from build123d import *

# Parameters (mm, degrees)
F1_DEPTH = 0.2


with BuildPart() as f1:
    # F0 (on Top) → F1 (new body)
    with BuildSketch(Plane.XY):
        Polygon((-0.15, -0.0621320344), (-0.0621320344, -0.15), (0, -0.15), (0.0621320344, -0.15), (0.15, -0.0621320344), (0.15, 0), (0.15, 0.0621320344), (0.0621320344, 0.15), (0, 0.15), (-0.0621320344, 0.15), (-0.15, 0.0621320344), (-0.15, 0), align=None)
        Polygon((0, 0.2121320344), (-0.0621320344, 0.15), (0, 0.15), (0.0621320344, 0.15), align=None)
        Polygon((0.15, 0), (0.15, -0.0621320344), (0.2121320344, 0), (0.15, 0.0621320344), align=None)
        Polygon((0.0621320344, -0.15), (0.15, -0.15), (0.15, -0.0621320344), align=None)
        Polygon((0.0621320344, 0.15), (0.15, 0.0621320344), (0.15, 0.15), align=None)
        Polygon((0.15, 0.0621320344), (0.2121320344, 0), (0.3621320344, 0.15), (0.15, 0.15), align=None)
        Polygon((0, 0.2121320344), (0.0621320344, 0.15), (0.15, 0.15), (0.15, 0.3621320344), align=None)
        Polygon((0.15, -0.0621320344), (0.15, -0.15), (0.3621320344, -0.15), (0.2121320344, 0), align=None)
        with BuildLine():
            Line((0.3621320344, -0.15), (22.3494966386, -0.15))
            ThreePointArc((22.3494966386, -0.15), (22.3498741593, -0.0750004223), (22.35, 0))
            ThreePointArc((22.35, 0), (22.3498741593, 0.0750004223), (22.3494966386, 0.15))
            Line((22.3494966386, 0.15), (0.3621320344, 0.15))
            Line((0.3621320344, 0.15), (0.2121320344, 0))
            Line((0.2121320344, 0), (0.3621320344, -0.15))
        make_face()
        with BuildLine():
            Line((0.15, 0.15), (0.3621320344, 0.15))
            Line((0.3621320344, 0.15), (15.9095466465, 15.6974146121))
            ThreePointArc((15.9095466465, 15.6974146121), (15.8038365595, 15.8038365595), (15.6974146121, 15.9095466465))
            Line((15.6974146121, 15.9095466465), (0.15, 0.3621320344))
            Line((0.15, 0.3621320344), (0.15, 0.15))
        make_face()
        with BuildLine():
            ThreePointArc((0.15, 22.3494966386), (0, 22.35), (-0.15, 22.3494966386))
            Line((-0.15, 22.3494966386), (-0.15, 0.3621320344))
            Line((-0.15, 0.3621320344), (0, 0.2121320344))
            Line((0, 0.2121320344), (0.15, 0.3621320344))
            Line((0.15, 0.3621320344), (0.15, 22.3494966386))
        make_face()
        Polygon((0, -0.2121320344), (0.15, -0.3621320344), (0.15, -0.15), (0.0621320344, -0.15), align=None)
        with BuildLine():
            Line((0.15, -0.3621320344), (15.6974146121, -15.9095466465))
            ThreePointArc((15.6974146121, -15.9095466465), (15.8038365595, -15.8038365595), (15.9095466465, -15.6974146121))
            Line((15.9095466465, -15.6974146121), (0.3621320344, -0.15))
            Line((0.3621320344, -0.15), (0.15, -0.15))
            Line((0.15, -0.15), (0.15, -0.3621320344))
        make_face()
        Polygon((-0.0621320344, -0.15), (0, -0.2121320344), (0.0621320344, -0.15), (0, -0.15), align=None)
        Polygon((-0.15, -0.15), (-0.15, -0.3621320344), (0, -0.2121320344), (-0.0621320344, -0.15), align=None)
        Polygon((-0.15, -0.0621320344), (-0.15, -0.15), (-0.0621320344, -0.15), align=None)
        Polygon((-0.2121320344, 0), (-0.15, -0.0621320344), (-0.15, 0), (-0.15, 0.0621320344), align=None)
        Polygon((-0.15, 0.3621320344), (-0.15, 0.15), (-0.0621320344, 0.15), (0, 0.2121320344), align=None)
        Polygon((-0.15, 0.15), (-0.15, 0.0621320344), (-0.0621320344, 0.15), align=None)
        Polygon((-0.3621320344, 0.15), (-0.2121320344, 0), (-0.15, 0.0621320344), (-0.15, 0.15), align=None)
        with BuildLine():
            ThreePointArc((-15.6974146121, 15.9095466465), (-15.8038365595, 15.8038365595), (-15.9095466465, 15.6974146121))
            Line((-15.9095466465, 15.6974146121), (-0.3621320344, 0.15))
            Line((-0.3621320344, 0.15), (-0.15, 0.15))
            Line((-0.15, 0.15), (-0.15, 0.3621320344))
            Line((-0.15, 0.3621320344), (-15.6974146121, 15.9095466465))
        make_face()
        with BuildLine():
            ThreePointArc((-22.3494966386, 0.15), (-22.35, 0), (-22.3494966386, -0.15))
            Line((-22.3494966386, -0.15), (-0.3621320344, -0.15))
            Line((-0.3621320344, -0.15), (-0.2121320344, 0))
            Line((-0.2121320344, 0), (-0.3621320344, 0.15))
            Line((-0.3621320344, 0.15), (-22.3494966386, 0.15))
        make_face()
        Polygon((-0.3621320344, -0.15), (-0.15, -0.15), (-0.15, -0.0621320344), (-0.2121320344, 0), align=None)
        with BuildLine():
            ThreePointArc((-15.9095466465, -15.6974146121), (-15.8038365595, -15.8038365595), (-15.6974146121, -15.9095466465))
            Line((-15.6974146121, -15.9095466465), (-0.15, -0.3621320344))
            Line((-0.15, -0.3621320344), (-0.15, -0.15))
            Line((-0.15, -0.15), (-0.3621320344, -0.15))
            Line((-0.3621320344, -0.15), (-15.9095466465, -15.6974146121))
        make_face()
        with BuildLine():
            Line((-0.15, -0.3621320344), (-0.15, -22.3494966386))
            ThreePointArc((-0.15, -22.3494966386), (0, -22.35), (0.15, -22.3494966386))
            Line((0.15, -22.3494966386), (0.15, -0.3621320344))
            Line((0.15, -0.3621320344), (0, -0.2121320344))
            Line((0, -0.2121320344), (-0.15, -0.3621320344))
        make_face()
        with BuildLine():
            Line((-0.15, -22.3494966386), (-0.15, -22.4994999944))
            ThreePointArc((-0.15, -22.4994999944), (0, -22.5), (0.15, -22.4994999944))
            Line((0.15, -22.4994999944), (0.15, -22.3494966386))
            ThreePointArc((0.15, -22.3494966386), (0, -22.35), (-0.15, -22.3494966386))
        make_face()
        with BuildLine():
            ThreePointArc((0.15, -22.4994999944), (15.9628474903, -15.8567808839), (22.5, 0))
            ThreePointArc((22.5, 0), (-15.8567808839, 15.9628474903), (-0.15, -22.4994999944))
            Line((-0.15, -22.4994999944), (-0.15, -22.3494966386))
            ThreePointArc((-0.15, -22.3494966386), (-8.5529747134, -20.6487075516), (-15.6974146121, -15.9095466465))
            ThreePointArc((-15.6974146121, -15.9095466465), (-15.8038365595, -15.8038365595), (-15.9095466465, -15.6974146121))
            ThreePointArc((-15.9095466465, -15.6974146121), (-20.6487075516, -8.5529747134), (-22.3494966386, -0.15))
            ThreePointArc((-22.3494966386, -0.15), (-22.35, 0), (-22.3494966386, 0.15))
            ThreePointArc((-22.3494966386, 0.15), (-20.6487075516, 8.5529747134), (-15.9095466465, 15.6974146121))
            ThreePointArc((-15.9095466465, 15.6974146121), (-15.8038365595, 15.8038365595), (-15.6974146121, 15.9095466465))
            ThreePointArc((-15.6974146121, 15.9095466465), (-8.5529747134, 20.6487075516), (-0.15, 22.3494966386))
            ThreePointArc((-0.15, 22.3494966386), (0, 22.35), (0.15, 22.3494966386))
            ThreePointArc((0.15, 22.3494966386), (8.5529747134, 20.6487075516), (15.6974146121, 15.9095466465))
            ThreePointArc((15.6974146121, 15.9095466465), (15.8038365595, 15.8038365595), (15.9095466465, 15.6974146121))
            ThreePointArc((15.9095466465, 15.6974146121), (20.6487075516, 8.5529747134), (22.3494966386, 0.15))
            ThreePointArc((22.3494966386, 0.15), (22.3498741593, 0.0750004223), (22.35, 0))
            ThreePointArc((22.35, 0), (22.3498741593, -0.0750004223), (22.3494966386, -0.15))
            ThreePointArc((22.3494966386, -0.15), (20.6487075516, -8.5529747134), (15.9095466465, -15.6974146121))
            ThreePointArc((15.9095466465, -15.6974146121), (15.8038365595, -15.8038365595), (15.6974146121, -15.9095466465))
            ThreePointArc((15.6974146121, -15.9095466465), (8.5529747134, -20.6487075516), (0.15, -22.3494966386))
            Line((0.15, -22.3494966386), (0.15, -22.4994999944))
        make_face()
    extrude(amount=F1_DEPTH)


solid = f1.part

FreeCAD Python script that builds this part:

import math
import FreeCAD as App
import Part
import Sketcher
Q = App.Units.Quantity

doc = App.newDocument("Part")
body = doc.addObject("PartDesign::Body", "Body")

sketch1 = body.newObject("Sketcher::SketchObject", "Sketch")
sketch1.AttachmentSupport = (doc.getObject("XY_Plane"), [""])
sketch1.MapMode = "FlatFace"
sketch1.addGeometry([
    Part.ArcOfCircle(Part.Circle(App.Vector(0, 0, 0), App.Vector(0, 0, 1), 22.5), math.radians(-90.38), math.radians(-89.62)),
    Part.ArcOfCircle(Part.Circle(App.Vector(0, 0, 0), App.Vector(0, 0, 1), 22.5), math.radians(-90), math.radians(0)),
    Part.ArcOfCircle(Part.Circle(App.Vector(0, 0, 0), App.Vector(0, 0, 1), 22.5), math.radians(0), math.radians(270)),
    Part.LineSegment(App.Vector(0.15, -0.36, 0), App.Vector(15.7, -15.91, 0)),
    Part.ArcOfCircle(Part.Circle(App.Vector(0, 0, 0), App.Vector(0, 0, 1), 22.35), math.radians(-90), math.radians(-45)),
    Part.LineSegment(App.Vector(0.15, -22.35, 0), App.Vector(0.15, -0.36, 0)),
    Part.LineSegment(App.Vector(15.91, -15.7, 0), App.Vector(0.36, -0.15, 0)),
    Part.LineSegment(App.Vector(0.36, -0.15, 0), App.Vector(22.35, -0.15, 0)),
    Part.ArcOfCircle(Part.Circle(App.Vector(0, 0, 0), App.Vector(0, 0, 1), 22.35), math.radians(-45), math.radians(0)),
    Part.LineSegment(App.Vector(22.35, 0.15, 0), App.Vector(0.36, 0.15, 0)),
    Part.LineSegment(App.Vector(0.36, 0.15, 0), App.Vector(15.91, 15.7, 0)),
    Part.ArcOfCircle(Part.Circle(App.Vector(0, 0, 0), App.Vector(0, 0, 1), 22.35), math.radians(0), math.radians(45)),
    Part.LineSegment(App.Vector(15.7, 15.91, 0), App.Vector(0.15, 0.36, 0)),
    Part.LineSegment(App.Vector(0.15, 0.36, 0), App.Vector(0.15, 22.35, 0)),
    Part.ArcOfCircle(Part.Circle(App.Vector(0, 0, 0), App.Vector(0, 0, 1), 22.35), math.radians(45), math.radians(90)),
    Part.LineSegment(App.Vector(-0.15, 22.35, 0), App.Vector(-0.15, 0.36, 0)),
    Part.LineSegment(App.Vector(-0.15, 0.36, 0), App.Vector(-15.7, 15.91, 0)),
    Part.ArcOfCircle(Part.Circle(App.Vector(0, 0, 0), App.Vector(0, 0, 1), 22.35), math.radians(90), math.radians(135)),
    Part.LineSegment(App.Vector(-15.91, 15.7, 0), App.Vector(-0.36, 0.15, 0)),
    Part.LineSegment(App.Vector(-0.36, 0.15, 0), App.Vector(-22.35, 0.15, 0)),
    Part.ArcOfCircle(Part.Circle(App.Vector(0, 0, 0), App.Vector(0, 0, 1), 22.35), math.radians(135), math.radians(180)),
    Part.LineSegment(App.Vector(-22.35, -0.15, 0), App.Vector(-0.36, -0.15, 0)),
    Part.LineSegment(App.Vector(-0.36, -0.15, 0), App.Vector(-15.91, -15.7, 0)),
    Part.ArcOfCircle(Part.Circle(App.Vector(0, 0, 0), App.Vector(0, 0, 1), 22.35), math.radians(-180), math.radians(-135)),
    Part.LineSegment(App.Vector(-15.7, -15.91, 0), App.Vector(-0.15, -0.36, 0)),
    Part.LineSegment(App.Vector(-0.15, -0.36, 0), App.Vector(-0.15, -22.35, 0)),
    Part.ArcOfCircle(Part.Circle(App.Vector(0, 0, 0), App.Vector(0, 0, 1), 22.35), math.radians(-135), math.radians(-90)),
], False)
sketch1.addConstraint([
    Sketcher.Constraint("Tangent", 0, 2, 1, 1),
    Sketcher.Constraint("Tangent", 1, 2, 2, 1),
    Sketcher.Constraint("Coincident", 2, 2, 0, 1),
    Sketcher.Constraint("Coincident", 3, 2, 4, 2),
    Sketcher.Constraint("Coincident", 4, 1, 5, 1),
    Sketcher.Constraint("Coincident", 5, 2, 3, 1),
    Sketcher.Constraint("Coincident", 6, 2, 7, 1),
    Sketcher.Constraint("Coincident", 7, 2, 8, 2),
    Sketcher.Constraint("Coincident", 8, 1, 6, 1),
    Sketcher.Constraint("Coincident", 9, 2, 10, 1),
    Sketcher.Constraint("Coincident", 10, 2, 11, 2),
    Sketcher.Constraint("Coincident", 11, 1, 9, 1),
    Sketcher.Constraint("Coincident", 12, 2, 13, 1),
    Sketcher.Constraint("Coincident", 13, 2, 14, 2),
    Sketcher.Constraint("Coincident", 14, 1, 12, 1),
    Sketcher.Constraint("Coincident", 15, 2, 16, 1),
    Sketcher.Constraint("Coincident", 16, 2, 17, 2),
    Sketcher.Constraint("Coincident", 17, 1, 15, 1),
    Sketcher.Constraint("Coincident", 18, 2, 19, 1),
    Sketcher.Constraint("Coincident", 19, 2, 20, 2),
    Sketcher.Constraint("Coincident", 20, 1, 18, 1),
    Sketcher.Constraint("Coincident", 21, 2, 22, 1),
    Sketcher.Constraint("Coincident", 22, 2, 23, 2),
    Sketcher.Constraint("Coincident", 23, 1, 21, 1),
    Sketcher.Constraint("Coincident", 24, 2, 25, 1),
    Sketcher.Constraint("Coincident", 25, 2, 26, 2),
    Sketcher.Constraint("Coincident", 26, 1, 24, 1),
    Sketcher.Constraint("Vertical", 5),
    Sketcher.Constraint("Horizontal", 7),
    Sketcher.Constraint("Horizontal", 9),
    Sketcher.Constraint("Vertical", 13),
    Sketcher.Constraint("Vertical", 15),
    Sketcher.Constraint("Horizontal", 19),
    Sketcher.Constraint("Horizontal", 21),
    Sketcher.Constraint("Vertical", 25),
    Sketcher.Constraint("Coincident", 0, 3, -1, 1),
    Sketcher.Constraint("Coincident", 4, 3, -1, 1),
    Sketcher.Constraint("Coincident", 8, 3, -1, 1),
    Sketcher.Constraint("Coincident", 11, 3, -1, 1),
    Sketcher.Constraint("Coincident", 14, 3, -1, 1),
    Sketcher.Constraint("Coincident", 17, 3, -1, 1),
    Sketcher.Constraint("Coincident", 20, 3, -1, 1),
    Sketcher.Constraint("Coincident", 23, 3, -1, 1),
    Sketcher.Constraint("Coincident", 26, 3, -1, 1),
    Sketcher.Constraint("Equal", 0, 1),
    Sketcher.Constraint("Equal", 4, 8),
    Sketcher.Constraint("Equal", 8, 11),
    Sketcher.Constraint("Equal", 11, 14),
    Sketcher.Constraint("Equal", 14, 17),
    Sketcher.Constraint("Equal", 17, 20),
    Sketcher.Constraint("Equal", 20, 23),
    Sketcher.Constraint("Equal", 23, 26),
    Sketcher.Constraint("Symmetric", 5, 2, 15, 2, -1, 1),
    Sketcher.Constraint("Symmetric", 6, 2, 18, 2, -1, 1),
    Sketcher.Constraint("Symmetric", 9, 2, 21, 2, -1, 1),
    Sketcher.Constraint("Symmetric", 12, 2, 24, 2, -1, 1),
    Sketcher.Constraint("Symmetric", 12, 2, 15, 2, -2),
    Sketcher.Constraint("Symmetric", 9, 2, 18, 2, -2),
    Sketcher.Constraint("PointOnObject", 1, 2, -1),
    Sketcher.Constraint("Parallel", 3, 6),
    Sketcher.Constraint("Perpendicular", 6, 10),
    Sketcher.Constraint("Parallel", 10, 12),
    Sketcher.Constraint("Perpendicular", 12, 16),
    Sketcher.Constraint("Parallel", 16, 18),
    Sketcher.Constraint("Perpendicular", 18, 22),
    Sketcher.Constraint("Parallel", 22, 24),
    Sketcher.Constraint("Horizontal", 0, 2, 2, 2),
    Sketcher.Constraint("Horizontal", 14, 1, 16, 2),
    Sketcher.Constraint("Vertical", 0, 2, 4, 1),
    Sketcher.Constraint("Equal", 21, 5),
    Sketcher.Constraint("Equal", 3, 6),
    Sketcher.Constraint("Radius", 0, Q("22.499998 mm")),
    Sketcher.Constraint("Radius", 4, Q("22.35 mm")),
    Sketcher.Constraint("DistanceX", 2, 2, 0, 2, Q("0.3 mm")),
    Sketcher.Constraint("DistanceX", 7, 1, 7, 2, Q("21.987365 mm")),
])
pad1 = body.newObject("PartDesign::Pad", "Pad")
pad1.Profile = sketch1
pad1.Length = 0.2

doc.recompute()
